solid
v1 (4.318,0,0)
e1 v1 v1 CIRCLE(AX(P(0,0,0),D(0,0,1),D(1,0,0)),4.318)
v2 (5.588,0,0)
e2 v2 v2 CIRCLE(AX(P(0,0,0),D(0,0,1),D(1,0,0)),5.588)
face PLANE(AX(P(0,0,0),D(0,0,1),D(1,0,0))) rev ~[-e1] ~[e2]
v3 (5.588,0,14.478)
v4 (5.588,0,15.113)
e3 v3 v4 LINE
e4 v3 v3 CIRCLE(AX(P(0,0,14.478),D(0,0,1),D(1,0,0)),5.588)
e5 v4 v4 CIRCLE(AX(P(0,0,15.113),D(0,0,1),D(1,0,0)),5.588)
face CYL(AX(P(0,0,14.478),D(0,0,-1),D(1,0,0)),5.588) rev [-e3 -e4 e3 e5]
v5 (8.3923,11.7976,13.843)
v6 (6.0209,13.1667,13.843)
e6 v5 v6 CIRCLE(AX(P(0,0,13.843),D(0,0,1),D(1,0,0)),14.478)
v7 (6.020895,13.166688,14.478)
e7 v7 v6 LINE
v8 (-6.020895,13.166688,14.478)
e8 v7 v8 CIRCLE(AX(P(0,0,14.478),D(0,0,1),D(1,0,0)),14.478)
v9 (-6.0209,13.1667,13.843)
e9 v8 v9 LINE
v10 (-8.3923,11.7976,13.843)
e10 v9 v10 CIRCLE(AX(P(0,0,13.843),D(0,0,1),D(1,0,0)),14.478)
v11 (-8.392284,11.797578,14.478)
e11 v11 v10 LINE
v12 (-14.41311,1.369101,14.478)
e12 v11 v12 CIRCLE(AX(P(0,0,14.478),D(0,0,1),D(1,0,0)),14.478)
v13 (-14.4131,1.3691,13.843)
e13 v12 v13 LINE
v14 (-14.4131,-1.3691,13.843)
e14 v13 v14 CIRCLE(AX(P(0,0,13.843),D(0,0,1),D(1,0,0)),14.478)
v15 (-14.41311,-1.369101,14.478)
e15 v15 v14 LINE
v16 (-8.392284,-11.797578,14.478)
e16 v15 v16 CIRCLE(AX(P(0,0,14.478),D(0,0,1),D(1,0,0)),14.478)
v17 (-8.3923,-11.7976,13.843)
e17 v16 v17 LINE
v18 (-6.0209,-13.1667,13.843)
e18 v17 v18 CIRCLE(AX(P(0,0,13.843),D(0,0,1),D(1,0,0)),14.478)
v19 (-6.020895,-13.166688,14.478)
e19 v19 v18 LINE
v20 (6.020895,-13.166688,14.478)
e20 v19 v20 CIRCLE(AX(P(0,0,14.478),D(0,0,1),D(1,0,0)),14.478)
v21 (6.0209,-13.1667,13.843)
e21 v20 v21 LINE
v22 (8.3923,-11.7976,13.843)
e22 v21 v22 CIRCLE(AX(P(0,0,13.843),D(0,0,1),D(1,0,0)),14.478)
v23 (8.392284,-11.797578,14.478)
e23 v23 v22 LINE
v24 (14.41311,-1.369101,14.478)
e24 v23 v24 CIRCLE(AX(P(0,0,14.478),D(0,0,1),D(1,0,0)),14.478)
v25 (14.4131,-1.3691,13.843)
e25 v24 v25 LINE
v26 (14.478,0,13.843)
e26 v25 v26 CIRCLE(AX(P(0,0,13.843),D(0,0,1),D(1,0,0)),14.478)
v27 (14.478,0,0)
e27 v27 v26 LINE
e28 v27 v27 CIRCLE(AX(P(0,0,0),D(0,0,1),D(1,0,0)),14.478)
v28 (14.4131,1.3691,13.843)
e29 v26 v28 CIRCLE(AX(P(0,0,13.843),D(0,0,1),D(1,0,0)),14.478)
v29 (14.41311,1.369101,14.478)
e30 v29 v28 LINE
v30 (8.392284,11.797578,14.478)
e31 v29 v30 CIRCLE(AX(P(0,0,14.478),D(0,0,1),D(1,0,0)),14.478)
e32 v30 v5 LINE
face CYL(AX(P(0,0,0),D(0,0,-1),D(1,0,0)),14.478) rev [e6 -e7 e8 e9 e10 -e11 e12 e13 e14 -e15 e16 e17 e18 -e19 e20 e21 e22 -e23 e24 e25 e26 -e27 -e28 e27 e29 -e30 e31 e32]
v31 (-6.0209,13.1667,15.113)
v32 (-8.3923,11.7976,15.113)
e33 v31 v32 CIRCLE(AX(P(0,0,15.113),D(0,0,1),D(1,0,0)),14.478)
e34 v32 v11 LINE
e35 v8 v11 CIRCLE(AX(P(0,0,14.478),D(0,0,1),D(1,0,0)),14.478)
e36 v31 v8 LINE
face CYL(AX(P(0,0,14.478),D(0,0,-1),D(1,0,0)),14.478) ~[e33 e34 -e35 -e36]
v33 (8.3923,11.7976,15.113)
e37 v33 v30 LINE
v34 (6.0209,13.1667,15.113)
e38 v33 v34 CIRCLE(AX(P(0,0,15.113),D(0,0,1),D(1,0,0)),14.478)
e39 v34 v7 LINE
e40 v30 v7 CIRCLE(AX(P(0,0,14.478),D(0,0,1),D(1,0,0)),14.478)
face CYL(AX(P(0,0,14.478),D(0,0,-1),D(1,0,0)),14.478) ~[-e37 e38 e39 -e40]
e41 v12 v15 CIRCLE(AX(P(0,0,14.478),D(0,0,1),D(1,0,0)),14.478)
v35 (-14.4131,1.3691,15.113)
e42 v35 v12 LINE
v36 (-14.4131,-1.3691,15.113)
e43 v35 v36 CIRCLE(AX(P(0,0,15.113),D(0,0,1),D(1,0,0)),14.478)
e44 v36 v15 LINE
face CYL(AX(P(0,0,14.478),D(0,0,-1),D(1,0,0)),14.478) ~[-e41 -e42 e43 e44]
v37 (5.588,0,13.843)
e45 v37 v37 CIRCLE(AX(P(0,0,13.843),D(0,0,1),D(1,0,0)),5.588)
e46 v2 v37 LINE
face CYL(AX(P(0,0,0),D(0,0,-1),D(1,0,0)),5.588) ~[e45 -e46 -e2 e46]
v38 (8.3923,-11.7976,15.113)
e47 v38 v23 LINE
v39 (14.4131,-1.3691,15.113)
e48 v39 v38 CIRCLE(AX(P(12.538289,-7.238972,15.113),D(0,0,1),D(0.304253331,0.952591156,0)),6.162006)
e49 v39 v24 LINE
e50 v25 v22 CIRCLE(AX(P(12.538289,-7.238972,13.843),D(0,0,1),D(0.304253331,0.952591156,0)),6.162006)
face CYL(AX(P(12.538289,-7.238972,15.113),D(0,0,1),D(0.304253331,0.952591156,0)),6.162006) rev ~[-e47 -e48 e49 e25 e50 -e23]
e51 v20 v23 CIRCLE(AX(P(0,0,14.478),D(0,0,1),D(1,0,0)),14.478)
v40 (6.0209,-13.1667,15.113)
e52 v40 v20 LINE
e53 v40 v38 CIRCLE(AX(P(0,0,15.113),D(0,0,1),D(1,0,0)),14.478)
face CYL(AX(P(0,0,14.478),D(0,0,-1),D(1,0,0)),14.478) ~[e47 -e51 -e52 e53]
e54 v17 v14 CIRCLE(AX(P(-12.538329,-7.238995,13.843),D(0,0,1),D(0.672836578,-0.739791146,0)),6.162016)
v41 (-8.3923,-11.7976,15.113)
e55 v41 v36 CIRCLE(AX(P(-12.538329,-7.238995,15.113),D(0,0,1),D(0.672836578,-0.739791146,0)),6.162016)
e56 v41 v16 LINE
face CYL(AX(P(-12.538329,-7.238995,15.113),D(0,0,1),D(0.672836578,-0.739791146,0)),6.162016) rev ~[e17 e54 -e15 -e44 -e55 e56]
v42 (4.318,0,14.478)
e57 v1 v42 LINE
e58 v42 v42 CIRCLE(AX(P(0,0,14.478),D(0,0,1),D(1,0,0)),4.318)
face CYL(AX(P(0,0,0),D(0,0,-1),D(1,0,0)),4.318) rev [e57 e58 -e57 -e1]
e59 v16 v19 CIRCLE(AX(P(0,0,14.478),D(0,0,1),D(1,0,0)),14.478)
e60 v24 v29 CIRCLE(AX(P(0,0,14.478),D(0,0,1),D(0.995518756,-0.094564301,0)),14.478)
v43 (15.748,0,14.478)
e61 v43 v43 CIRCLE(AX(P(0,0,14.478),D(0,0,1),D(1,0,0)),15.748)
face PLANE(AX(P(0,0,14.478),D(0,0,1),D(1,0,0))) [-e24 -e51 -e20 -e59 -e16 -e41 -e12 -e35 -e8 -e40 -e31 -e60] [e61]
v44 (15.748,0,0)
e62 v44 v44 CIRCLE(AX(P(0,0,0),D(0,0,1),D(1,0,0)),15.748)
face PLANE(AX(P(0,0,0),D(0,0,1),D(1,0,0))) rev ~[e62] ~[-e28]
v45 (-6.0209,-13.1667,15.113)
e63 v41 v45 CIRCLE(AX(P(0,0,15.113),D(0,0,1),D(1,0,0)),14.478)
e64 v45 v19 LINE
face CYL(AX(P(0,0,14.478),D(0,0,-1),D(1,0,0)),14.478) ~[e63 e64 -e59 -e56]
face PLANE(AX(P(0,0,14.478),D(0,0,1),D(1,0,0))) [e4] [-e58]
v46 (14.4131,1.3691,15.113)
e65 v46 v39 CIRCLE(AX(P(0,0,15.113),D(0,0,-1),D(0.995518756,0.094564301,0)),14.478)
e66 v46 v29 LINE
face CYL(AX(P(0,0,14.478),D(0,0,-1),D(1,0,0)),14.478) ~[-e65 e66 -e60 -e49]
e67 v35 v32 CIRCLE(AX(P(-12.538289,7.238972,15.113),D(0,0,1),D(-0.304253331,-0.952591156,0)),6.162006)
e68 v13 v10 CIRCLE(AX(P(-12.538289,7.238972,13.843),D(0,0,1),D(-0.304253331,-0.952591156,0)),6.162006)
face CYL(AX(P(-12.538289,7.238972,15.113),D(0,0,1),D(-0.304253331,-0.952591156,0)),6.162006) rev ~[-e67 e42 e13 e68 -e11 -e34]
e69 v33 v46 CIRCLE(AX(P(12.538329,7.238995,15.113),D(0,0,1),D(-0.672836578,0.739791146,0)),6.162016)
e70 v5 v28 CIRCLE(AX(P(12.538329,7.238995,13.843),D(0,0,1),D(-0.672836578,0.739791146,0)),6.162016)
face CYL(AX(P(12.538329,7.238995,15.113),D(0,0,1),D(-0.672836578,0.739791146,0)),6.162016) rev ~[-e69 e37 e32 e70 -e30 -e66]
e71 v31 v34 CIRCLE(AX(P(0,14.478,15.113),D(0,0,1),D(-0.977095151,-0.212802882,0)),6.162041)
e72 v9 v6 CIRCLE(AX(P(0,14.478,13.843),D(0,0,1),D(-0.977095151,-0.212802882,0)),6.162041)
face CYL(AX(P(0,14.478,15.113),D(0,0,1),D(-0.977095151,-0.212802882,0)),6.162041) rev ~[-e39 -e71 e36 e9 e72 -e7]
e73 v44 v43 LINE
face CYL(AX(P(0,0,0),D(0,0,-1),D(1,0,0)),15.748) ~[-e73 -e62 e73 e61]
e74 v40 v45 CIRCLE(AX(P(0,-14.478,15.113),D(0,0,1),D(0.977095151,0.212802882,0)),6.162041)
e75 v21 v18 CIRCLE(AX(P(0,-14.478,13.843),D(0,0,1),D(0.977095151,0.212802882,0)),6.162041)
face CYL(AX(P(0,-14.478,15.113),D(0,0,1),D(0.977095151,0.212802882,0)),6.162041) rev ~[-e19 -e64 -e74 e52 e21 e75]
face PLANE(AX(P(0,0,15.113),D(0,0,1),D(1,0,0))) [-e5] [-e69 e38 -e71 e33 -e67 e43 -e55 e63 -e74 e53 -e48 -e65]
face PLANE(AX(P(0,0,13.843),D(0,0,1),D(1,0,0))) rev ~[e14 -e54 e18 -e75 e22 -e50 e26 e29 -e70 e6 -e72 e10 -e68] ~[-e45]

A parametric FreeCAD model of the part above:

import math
import FreeCAD as App
import Part
import Sketcher

V = App.Vector
Q = App.Units.Quantity

doc = App.newDocument("Part")
body = doc.addObject("PartDesign::Body", "Body")
body.AllowCompound = True

sketch1 = doc.addObject("Sketcher::SketchObject", "Sketch")
body.addObject(sketch1)
sketch1.AttachmentSupport = (doc.XY_Plane, [""])
sketch1.MapMode = "FlatFace"
sketch1.addGeometry([
    Part.Circle(V(0, 0, 0), V(0, 0, 1), 5.6),
    Part.Circle(V(0, 0, 0), V(0, 0, 1), 4.3),
    Part.Circle(V(0, 0, 0), V(0, 0, 1), 15.7),
    Part.Circle(V(0, 0, 0), V(0, 0, 1), 14.5),
], False)
sketch1.addConstraint([
    Sketcher.Constraint("Coincident", 0, 3, -1, 1),
    Sketcher.Constraint("Coincident", 1, 3, -1, 1),
    Sketcher.Constraint("Coincident", 2, 3, -1, 1),
    Sketcher.Constraint("Coincident", 3, 3, -1, 1),
    Sketcher.Constraint("Diameter", 0, Q("0.44 in")),
    Sketcher.Constraint("Diameter", 1, Q("0.34 in")),
    Sketcher.Constraint("Diameter", 2, Q("1.24 in")),
    Sketcher.Constraint("Diameter", 3, Q("1.14 in")),
])
pad1 = doc.addObject("PartDesign::Pad", "Pad")
body.addObject(pad1)
pad1.Profile = sketch1
pad1.Length = Q("0.57 in")

sketch2 = doc.addObject("Sketcher::SketchObject", "Sketch001")
body.addObject(sketch2)
sketch2.AttachmentSupport = (doc.XY_Plane, [""])
sketch2.MapMode = "FlatFace"
sketch2.AttachmentOffset = App.Placement(V(0, 0, 0.57 * 25.4), App.Rotation())
sketch2.addGeometry([
    Part.Circle(V(0, 0, 0), V(0, 0, 1), 14),
    Part.Circle(V(0, 0, 0), V(0, 0, 1), 6),
], False)
sketch2.addConstraint([
    Sketcher.Constraint("Coincident", 0, 3, -1, 1),
    Sketcher.Constraint("Coincident", 1, 3, -1, 1),
    Sketcher.Constraint("Diameter", 0, Q("1.14 in")),
    Sketcher.Constraint("Diameter", 1, Q("0.44 in")),
])
pad2 = doc.addObject("PartDesign::Pad", "Pad001")
body.addObject(pad2)
pad2.Profile = sketch2
pad2.Length = Q("0.05 in")
pad2.Midplane = True

sketch3 = doc.addObject("Sketcher::SketchObject", "Sketch002")
body.addObject(sketch3)
sketch3.AttachmentSupport = (doc.XY_Plane, [""])
sketch3.MapMode = "FlatFace"
sketch3.AttachmentOffset = App.Placement(V(0, 0, 0.595 * 25.4), App.Rotation())
sketch3.addGeometry([
    Part.ArcOfCircle(Part.Circle(V(13, 7, 0), V(0, 0, 1), 6), math.radians(132), math.radians(288)),
    Part.ArcOfCircle(Part.Circle(V(0, 0, 0), V(0, 0, 1), 14), math.radians(5), math.radians(55)),
    Part.ArcOfCircle(Part.Circle(V(0, 0, 0), V(0, 0, 1), 14), math.radians(-55), math.radians(-5)),
    Part.ArcOfCircle(Part.Circle(V(13, -7, 0), V(0, 0, 1), 6), math.radians(72), math.radians(228)),
    Part.ArcOfCircle(Part.Circle(V(0, 14, 0), V(0, 0, 1), 6), math.radians(-168), math.radians(-12)),
    Part.ArcOfCircle(Part.Circle(V(0, 0, 0), V(0, 0, 1), 14), math.radians(65), math.radians(115)),
    Part.ArcOfCircle(Part.Circle(V(0, 0, 0), V(0, 0, 1), 14), math.radians(-115), math.radians(-65)),
    Part.ArcOfCircle(Part.Circle(V(0, -14, 0), V(0, 0, 1), 6), math.radians(12), math.radians(168)),
    Part.ArcOfCircle(Part.Circle(V(-13, 7, 0), V(0, 0, 1), 6), math.radians(-108), math.radians(48)),
    Part.ArcOfCircle(Part.Circle(V(0, 0, 0), V(0, 0, 1), 14), math.radians(125), math.radians(175)),
    Part.ArcOfCircle(Part.Circle(V(0, 0, 0), V(0, 0, 1), 14), math.radians(-175), math.radians(-125)),
    Part.ArcOfCircle(Part.Circle(V(-13, -7, 0), V(0, 0, 1), 6), math.radians(-48), math.radians(108)),
], False)
sketch3.addConstraint([
    Sketcher.Constraint("Coincident", 0, 1, 1, 2),
    Sketcher.Constraint("Coincident", 1, 1, 0, 2),
    Sketcher.Constraint("Coincident", 2, 1, 3, 2),
    Sketcher.Constraint("Coincident", 3, 1, 2, 2),
    Sketcher.Constraint("Coincident", 4, 1, 5, 2),
    Sketcher.Constraint("Coincident", 5, 1, 4, 2),
    Sketcher.Constraint("Coincident", 6, 1, 7, 2),
    Sketcher.Constraint("Coincident", 7, 1, 6, 2),
    Sketcher.Constraint("Coincident", 8, 1, 9, 2),
    Sketcher.Constraint("Coincident", 9, 1, 8, 2),
    Sketcher.Constraint("Coincident", 10, 1, 11, 2),
    Sketcher.Constraint("Coincident", 11, 1, 10, 2),
    Sketcher.Constraint("Coincident", 1, 3, -1, 1),
    Sketcher.Constraint("Coincident", 2, 3, -1, 1),
    Sketcher.Constraint("Coincident", 5, 3, -1, 1),
    Sketcher.Constraint("Coincident", 6, 3, -1, 1),
    Sketcher.Constraint("Coincident", 9, 3, -1, 1),
    Sketcher.Constraint("Coincident", 10, 3, -1, 1),
    Sketcher.Constraint("Equal", 1, 2),
    Sketcher.Constraint("Equal", 0, 3),
    Sketcher.Constraint("Equal", 3, 4),
    Sketcher.Constraint("Equal", 2, 5),
    Sketcher.Constraint("Equal", 5, 6),
    Sketcher.Constraint("Equal", 4, 7),
    Sketcher.Constraint("Equal", 7, 8),
    Sketcher.Constraint("Equal", 6, 9),
    Sketcher.Constraint("Equal", 9, 10),
    Sketcher.Constraint("Equal", 8, 11),
    Sketcher.Constraint("Symmetric", 4, 3, 7, 3, -1, 1),
    Sketcher.Constraint("Symmetric", 3, 3, 8, 3, -1, 1),
    Sketcher.Constraint("Symmetric", 0, 3, 11, 3, -1, 1),
    Sketcher.Constraint("Symmetric", 0, 3, 8, 3, -2),
    Sketcher.Constraint("PointOnObject", 4, 3, -2),
    Sketcher.Constraint("Radius", 1, Q("0.57 in")),
    Sketcher.Constraint("Radius", 0, Q("0.2426 in")),
    Sketcher.Constraint("DistanceY", -1, 1, 4, 3, Q("0.57 in")),
    Sketcher.Constraint("DistanceY", 3, 3, 0, 3, Q("0.57 in")),
    Sketcher.Constraint("DistanceX", -1, 1, 0, 1, Q("0.3304 in")),
])
pocket1 = doc.addObject("PartDesign::Pocket", "Pocket")
body.addObject(pocket1)
pocket1.Profile = sketch3
pocket1.Length = Q("0.05 in")

doc.recompute()
